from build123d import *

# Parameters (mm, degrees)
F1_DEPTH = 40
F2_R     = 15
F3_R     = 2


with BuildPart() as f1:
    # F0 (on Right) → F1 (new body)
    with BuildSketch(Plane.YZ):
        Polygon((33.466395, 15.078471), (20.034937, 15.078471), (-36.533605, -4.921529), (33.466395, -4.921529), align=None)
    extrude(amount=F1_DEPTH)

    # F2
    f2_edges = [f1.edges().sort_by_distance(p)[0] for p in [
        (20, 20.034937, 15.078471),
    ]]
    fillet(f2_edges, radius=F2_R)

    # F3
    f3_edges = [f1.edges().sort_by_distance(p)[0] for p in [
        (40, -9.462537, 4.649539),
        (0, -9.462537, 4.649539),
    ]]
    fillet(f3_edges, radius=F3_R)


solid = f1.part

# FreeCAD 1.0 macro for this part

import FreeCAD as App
import Part
import Sketcher

V = App.Vector
Q = App.Units.Quantity


def edges_at(feature, points):
    """Names of the edges that pass closest to the given points."""
    edges = feature.Shape.Edges
    near = lambda p: min(range(len(edges)), key=lambda i: edges[i].distToShape(Part.Vertex(*p))[0])
    return sorted({f"Edge{near(p) + 1}" for p in points})


def add_polygon(sketch, points):
    """Adds a closed chain of lines whose ends are joined by coincident constraints."""
    first, n = sketch.GeometryCount, len(points)
    for a, b in zip(points, points[1:] + points[:1]):
        sketch.addGeometry(Part.LineSegment(App.Vector(*a, 0), App.Vector(*b, 0)), False)
    for i in range(n):
        sketch.addConstraint(Sketcher.Constraint("Coincident", first + i, 2, first + (i + 1) % n, 1))

doc = App.newDocument("Part")
body = doc.addObject("PartDesign::Body", "Body")

sketch1 = body.newObject("Sketcher::SketchObject", "Sketch")
sketch1.AttachmentSupport = (doc.getObject("YZ_Plane"), [""])
sketch1.MapMode = "FlatFace"
add_polygon(sketch1, [(33.466395, 15.078471), (20.034937, 15.078471), (-36.533605, -4.921529), (33.466395, -4.921529)])
sketch1.addConstraint(Sketcher.Constraint("Horizontal", 0))
sketch1.addConstraint(Sketcher.Constraint("Horizontal", 2))
sketch1.addConstraint(Sketcher.Constraint("Vertical", 3))
sketch1.addConstraint(Sketcher.Constraint("DistanceX", 2, 1, 2, 2, Q("70 mm")))
sketch1.addConstraint(Sketcher.Constraint("DistanceY", 3, 1, 3, 2, Q("20 mm")))
sketch1.addConstraint(Sketcher.Constraint("Distance", 1, Q("60 mm")))
sketch1.addConstraint(Sketcher.Constraint("DistanceY", -1, 1, 0, 2, Q("15.078471 mm")))
sketch1.addConstraint(Sketcher.Constraint("DistanceX", -1, 1, 0, 2, Q("20.034937 mm")))
pad1 = body.newObject("PartDesign::Pad", "Pad")
pad1.Profile = sketch1
pad1.Length = 40
doc.recompute()

fillet = body.newObject("PartDesign::Fillet", "Fillet")
fillet.Base = (pad1, edges_at(pad1, [(20, 20.035, 15.078)]))
fillet.Radius = 15
doc.recompute()

fillet2 = body.newObject("PartDesign::Fillet", "Fillet001")
fillet2.Base = (fillet, edges_at(fillet, [(40, -9.463, 4.65), (0, -9.463, 4.65)]))
fillet2.Radius = 2

doc.recompute()
